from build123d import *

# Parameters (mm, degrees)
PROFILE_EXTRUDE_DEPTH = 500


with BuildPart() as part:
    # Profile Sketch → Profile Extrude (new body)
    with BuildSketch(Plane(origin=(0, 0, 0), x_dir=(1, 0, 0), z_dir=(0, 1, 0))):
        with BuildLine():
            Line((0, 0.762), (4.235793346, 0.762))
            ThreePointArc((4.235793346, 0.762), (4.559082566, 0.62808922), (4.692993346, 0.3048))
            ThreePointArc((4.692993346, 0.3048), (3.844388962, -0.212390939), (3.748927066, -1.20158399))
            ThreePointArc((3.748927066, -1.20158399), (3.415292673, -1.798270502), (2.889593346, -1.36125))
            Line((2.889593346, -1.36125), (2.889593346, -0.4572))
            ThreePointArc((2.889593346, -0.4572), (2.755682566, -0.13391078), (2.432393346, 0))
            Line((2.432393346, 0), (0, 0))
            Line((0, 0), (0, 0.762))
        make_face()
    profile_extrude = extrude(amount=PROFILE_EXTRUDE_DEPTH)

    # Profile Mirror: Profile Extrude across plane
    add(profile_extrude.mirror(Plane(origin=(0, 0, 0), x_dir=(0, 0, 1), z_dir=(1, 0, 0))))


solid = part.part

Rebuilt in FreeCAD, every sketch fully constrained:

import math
import FreeCAD as App
import Part
import Sketcher
Q = App.Units.Quantity

doc = App.newDocument("Part")
params = doc.addObject("Spreadsheet::Sheet", "Params")
for row, (alias, value) in enumerate([
    ("sketch1_radius", "0.018 in"),
    ("sketch1_height", "0.03 in"),
    ("pad1_length", "500 mm"),
], start=1):
    params.set(f"A{row}", alias)
    params.set(f"B{row}", "=" + value)
    params.setAlias(f"B{row}", alias)

body = doc.addObject("PartDesign::Body", "Body")

# Sketch on XZ plane
sketch1 = doc.addObject("Sketcher::SketchObject", "Sketch")
body.addObject(sketch1)
sketch1.AttachmentSupport = (doc.XZ_Plane, [""])
sketch1.MapMode = "FlatFace"
sketch1.addGeometry([
    Part.LineSegment(App.Vector(4.24, -0.76, 0), App.Vector(0, -0.76, 0)),  # 0
    Part.LineSegment(App.Vector(0, -0.76, 0), App.Vector(0, 0, 0)),  # 1
    Part.LineSegment(App.Vector(0, 0, 0), App.Vector(2.43, 0, 0)),  # 2
    Part.ArcOfCircle(Part.Circle(App.Vector(2.43, 0.46, 0), App.Vector(0, 0, 1), 0.46), math.radians(-90), math.radians(0)),  # 3
    Part.LineSegment(App.Vector(2.89, 0.46, 0), App.Vector(2.89, 1.36, 0)),  # 4
    Part.ArcOfCircle(Part.Circle(App.Vector(3.33, 1.36, 0), App.Vector(0, 0, 1), 0.44), math.radians(-21), math.radians(180)),  # 5
    Part.ArcOfCircle(Part.Circle(App.Vector(4.79, 0.8, 0), App.Vector(0, 0, 1), 1.11), math.radians(159), math.radians(265)),  # 6
    Part.ArcOfCircle(Part.Circle(App.Vector(4.24, -0.3, 0), App.Vector(0, 0, 1), 0.46), math.radians(-90), math.radians(0)),  # 7
], False)
sketch1.addConstraint([
    Sketcher.Constraint("Coincident", 0, 2, 1, 1),
    Sketcher.Constraint("Coincident", 1, 2, 2, 1),
    Sketcher.Constraint("Tangent", 2, 2, 3, 1),
    Sketcher.Constraint("Tangent", 3, 2, 4, 1),
    Sketcher.Constraint("Tangent", 4, 2, 5, 2),
    Sketcher.Constraint("Tangent", 5, 1, 6, 1),
    Sketcher.Constraint("Coincident", 6, 2, 7, 2),
    Sketcher.Constraint("Tangent", 7, 1, 0, 1),
    Sketcher.Constraint("Horizontal", 0),
    Sketcher.Constraint("Vertical", 1),
    Sketcher.Constraint("Horizontal", 2),
    Sketcher.Constraint("Vertical", 4),
    Sketcher.Constraint("Coincident", 1, 2, -1, 1),
    Sketcher.Constraint("Equal", 3, 7),
    Sketcher.Constraint("Horizontal", 7, 3, 6, 2),
    Sketcher.Constraint("Radius", 3, Q("0.018 in")),
    Sketcher.Constraint("DistanceY", 1, 1, 1, 2, Q("0.03 in")),
    Sketcher.Constraint("Radius", 5, Q("0.0175 in")),
    Sketcher.Constraint("DistanceX", 3, 3, 7, 3, Q("0.071 in")),
    Sketcher.Constraint("Radius", 6, 1.111148),
    Sketcher.Constraint("DistanceY", 4, 1, 4, 2, 0.90405),
    Sketcher.Constraint("DistanceX", 0, 2, 0, 1, 4.235793),
])
sketch1.setExpression("Constraints[15]", "Params.sketch1_radius")
sketch1.setExpression("Constraints[16]", "Params.sketch1_height")
pad1 = doc.addObject("PartDesign::Pad", "Pad")
body.addObject(pad1)
pad1.Profile = sketch1
pad1.setExpression("Length", "Params.pad1_length")
pad1.Reversed = True
doc.recompute()

mirrored = doc.addObject("PartDesign::Mirrored", "Mirrored")
body.addObject(mirrored)
mirrored.Originals = [pad1]
mirrored.MirrorPlane = (doc.YZ_Plane, [""])
body.Tip = mirrored

doc.recompute()
